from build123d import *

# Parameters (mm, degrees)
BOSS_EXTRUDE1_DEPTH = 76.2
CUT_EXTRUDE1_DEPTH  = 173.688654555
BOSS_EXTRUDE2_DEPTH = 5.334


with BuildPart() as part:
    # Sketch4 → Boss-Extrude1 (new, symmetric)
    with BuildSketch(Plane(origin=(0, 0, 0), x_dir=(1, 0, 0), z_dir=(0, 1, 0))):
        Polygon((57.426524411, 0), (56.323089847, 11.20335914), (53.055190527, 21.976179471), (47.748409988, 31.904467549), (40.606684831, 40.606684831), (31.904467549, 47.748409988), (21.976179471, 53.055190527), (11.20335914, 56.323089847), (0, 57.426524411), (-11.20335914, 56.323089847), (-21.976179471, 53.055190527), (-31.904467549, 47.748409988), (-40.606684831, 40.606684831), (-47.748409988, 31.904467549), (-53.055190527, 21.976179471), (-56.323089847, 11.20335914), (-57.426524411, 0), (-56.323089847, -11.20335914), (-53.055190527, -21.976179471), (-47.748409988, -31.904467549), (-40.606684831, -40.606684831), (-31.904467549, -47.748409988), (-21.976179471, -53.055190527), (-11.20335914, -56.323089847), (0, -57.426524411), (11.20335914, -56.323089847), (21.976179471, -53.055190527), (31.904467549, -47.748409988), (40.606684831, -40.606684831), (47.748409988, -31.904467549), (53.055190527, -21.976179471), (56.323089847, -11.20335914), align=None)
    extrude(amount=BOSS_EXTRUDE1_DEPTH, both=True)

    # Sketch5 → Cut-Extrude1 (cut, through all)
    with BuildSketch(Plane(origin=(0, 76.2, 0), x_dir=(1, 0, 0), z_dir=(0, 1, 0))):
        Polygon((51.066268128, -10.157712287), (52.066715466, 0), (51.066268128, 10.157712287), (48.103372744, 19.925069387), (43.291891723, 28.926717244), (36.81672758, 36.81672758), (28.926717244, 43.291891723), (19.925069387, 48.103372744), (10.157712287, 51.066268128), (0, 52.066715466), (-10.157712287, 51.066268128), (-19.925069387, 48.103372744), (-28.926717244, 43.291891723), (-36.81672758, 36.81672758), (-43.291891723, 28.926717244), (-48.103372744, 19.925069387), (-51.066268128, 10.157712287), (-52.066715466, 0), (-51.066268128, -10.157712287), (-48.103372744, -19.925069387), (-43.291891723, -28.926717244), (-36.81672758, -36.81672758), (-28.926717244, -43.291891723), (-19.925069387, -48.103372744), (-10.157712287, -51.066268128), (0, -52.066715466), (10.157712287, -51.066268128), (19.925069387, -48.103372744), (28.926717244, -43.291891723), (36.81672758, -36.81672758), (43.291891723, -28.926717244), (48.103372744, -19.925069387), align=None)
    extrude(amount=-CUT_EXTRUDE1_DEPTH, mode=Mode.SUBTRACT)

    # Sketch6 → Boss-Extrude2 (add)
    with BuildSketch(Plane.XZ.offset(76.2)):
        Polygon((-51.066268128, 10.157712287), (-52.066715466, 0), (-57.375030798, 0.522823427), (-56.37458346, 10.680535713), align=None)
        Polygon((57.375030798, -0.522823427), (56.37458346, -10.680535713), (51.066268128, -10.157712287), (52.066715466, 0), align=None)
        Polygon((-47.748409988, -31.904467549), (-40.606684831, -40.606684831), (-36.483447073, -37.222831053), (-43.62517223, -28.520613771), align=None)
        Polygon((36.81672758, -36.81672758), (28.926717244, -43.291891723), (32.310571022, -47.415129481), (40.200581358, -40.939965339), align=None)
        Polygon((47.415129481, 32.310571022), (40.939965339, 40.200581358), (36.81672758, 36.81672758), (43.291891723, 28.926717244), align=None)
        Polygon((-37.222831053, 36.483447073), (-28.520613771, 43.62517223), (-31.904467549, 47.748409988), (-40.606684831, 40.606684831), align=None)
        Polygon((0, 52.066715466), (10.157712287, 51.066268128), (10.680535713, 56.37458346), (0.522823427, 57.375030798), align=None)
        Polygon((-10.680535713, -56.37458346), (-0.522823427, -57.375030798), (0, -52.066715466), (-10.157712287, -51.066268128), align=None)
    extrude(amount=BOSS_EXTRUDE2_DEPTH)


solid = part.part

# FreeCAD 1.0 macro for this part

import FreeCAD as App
import Part
import Sketcher
from FreeCAD import Vector
Q = App.Units.Quantity


def add_polygon(sketch, points):
    """Adds a closed chain of lines whose ends are joined by coincident constraints."""
    first, n = sketch.GeometryCount, len(points)
    for a, b in zip(points, points[1:] + points[:1]):
        sketch.addGeometry(Part.LineSegment(App.Vector(*a, 0), App.Vector(*b, 0)), False)
    for i in range(n):
        sketch.addConstraint(Sketcher.Constraint("Coincident", first + i, 2, first + (i + 1) % n, 1))

doc = App.newDocument("Part")
body = doc.addObject("PartDesign::Body", "Body")

# Sketch on XZ plane
sketch1 = body.newObject("Sketcher::SketchObject", "Sketch")
sketch1.AttachmentSupport = (doc.getObject("XZ_Plane"), [""])
sketch1.MapMode = "FlatFace"
add_polygon(sketch1, [(57, 0), (56, -11), (53, -22), (48, -32), (41, -41), (32, -48), (22, -53), (11, -56), (0, -57), (-11, -56), (-22, -53), (-32, -48), (-41, -41), (-48, -32), (-53, -22), (-56, -11), (-57, 0), (-56, 11), (-53, 22), (-48, 32), (-41, 41), (-32, 48), (-22, 53), (-11, 56), (0, 57), (11, 56), (22, 53), (32, 48), (41, 41), (48, 32), (53, 22), (56, 11)])  # lines 0-31
sketch1.addConstraint(Sketcher.Constraint("Symmetric", 0, 2, 16, 2, -1, 1))
sketch1.addConstraint(Sketcher.Constraint("Symmetric", 1, 2, 17, 2, -1, 1))
sketch1.addConstraint(Sketcher.Constraint("Symmetric", 2, 2, 18, 2, -1, 1))
sketch1.addConstraint(Sketcher.Constraint("Symmetric", 3, 2, 19, 2, -1, 1))
sketch1.addConstraint(Sketcher.Constraint("Symmetric", 4, 2, 20, 2, -1, 1))
sketch1.addConstraint(Sketcher.Constraint("Symmetric", 5, 2, 21, 2, -1, 1))
sketch1.addConstraint(Sketcher.Constraint("Symmetric", 6, 2, 22, 2, -1, 1))
sketch1.addConstraint(Sketcher.Constraint("Symmetric", 7, 2, 23, 2, -1, 1))
sketch1.addConstraint(Sketcher.Constraint("Symmetric", 8, 2, 24, 2, -1, 1))
sketch1.addConstraint(Sketcher.Constraint("Symmetric", 9, 2, 25, 2, -1, 1))
sketch1.addConstraint(Sketcher.Constraint("Symmetric", 10, 2, 26, 2, -1, 1))
sketch1.addConstraint(Sketcher.Constraint("Symmetric", 11, 2, 27, 2, -1, 1))
sketch1.addConstraint(Sketcher.Constraint("Symmetric", 12, 2, 28, 2, -1, 1))
sketch1.addConstraint(Sketcher.Constraint("Symmetric", 13, 2, 29, 2, -1, 1))
sketch1.addConstraint(Sketcher.Constraint("Symmetric", 14, 2, 30, 2, -1, 1))
sketch1.addConstraint(Sketcher.Constraint("Symmetric", 15, 2, 31, 2, -1, 1))
sketch1.addConstraint(Sketcher.Constraint("Symmetric", 6, 2, 8, 2, -2))
sketch1.addConstraint(Sketcher.Constraint("Symmetric", 5, 2, 9, 2, -2))
sketch1.addConstraint(Sketcher.Constraint("Symmetric", 4, 2, 10, 2, -2))
sketch1.addConstraint(Sketcher.Constraint("Symmetric", 3, 2, 11, 2, -2))
sketch1.addConstraint(Sketcher.Constraint("Symmetric", 2, 2, 12, 2, -2))
sketch1.addConstraint(Sketcher.Constraint("Symmetric", 1, 2, 13, 2, -2))
sketch1.addConstraint(Sketcher.Constraint("Symmetric", 0, 2, 14, 2, -2))
sketch1.addConstraint(Sketcher.Constraint("PointOnObject", 7, 2, -2))
sketch1.addConstraint(Sketcher.Constraint("PointOnObject", 15, 2, -1))
sketch1.addConstraint(Sketcher.Constraint("Perpendicular", 0, 8))
sketch1.addConstraint(Sketcher.Constraint("Perpendicular", 1, 9))
sketch1.addConstraint(Sketcher.Constraint("Perpendicular", 2, 10))
sketch1.addConstraint(Sketcher.Constraint("Perpendicular", 3, 11))
sketch1.addConstraint(Sketcher.Constraint("Equal", 0, 1))
sketch1.addConstraint(Sketcher.Constraint("Equal", 1, 2))
sketch1.addConstraint(Sketcher.Constraint("Equal", 2, 3))
sketch1.addConstraint(Sketcher.Constraint("Equal", 3, 4))
sketch1.addConstraint(Sketcher.Constraint("Equal", 4, 5))
sketch1.addConstraint(Sketcher.Constraint("Equal", 5, 6))
sketch1.addConstraint(Sketcher.Constraint("Equal", 6, 7))
sketch1.addConstraint(Sketcher.Constraint("DistanceX", 1, 2, 0, 2, 3.267899))
sketch1.addConstraint(Sketcher.Constraint("DistanceX", -1, 1, 0, 2, 56.32309))
sketch1.addConstraint(Sketcher.Constraint("DistanceY", 0, 2, -1, 1, 11.203359))
sketch1.addConstraint(Sketcher.Constraint("DistanceY", 1, 2, -1, 1, 21.976179))
sketch1.addConstraint(Sketcher.Constraint("DistanceX", -1, 1, 2, 2, 47.74841))
pad1 = body.newObject("PartDesign::Pad", "Pad")
pad1.Profile = sketch1
pad1.Length = Q("6 in")
pad1.Midplane = True

# Sketch on XZ plane
sketch2 = body.newObject("Sketcher::SketchObject", "Sketch001")
sketch2.AttachmentSupport = (doc.getObject("XZ_Plane"), [""])
sketch2.MapMode = "FlatFace"
sketch2.AttachmentOffset = App.Placement(Vector(0, 0, -3 * 25.4), App.Rotation())
add_polygon(sketch2, [(51, 10), (52, 0), (51, -10), (48, -20), (43, -29), (37, -37), (29, -43), (20, -48), (10, -51), (0, -52), (-10, -51), (-20, -48), (-29, -43), (-37, -37), (-43, -29), (-48, -20), (-51, -10), (-52, 0), (-51, 10), (-48, 20), (-43, 29), (-37, 37), (-29, 43), (-20, 48), (-10, 51), (0, 52), (10, 51), (20, 48), (29, 43), (37, 37), (43, 29), (48, 20)])  # lines 0-31
sketch2.addConstraint(Sketcher.Constraint("Symmetric", 0, 2, 16, 2, -1, 1))
sketch2.addConstraint(Sketcher.Constraint("Symmetric", 1, 2, 17, 2, -1, 1))
sketch2.addConstraint(Sketcher.Constraint("Symmetric", 2, 2, 18, 2, -1, 1))
sketch2.addConstraint(Sketcher.Constraint("Symmetric", 3, 2, 19, 2, -1, 1))
sketch2.addConstraint(Sketcher.Constraint("Symmetric", 4, 2, 20, 2, -1, 1))
sketch2.addConstraint(Sketcher.Constraint("Symmetric", 5, 2, 21, 2, -1, 1))
sketch2.addConstraint(Sketcher.Constraint("Symmetric", 6, 2, 22, 2, -1, 1))
sketch2.addConstraint(Sketcher.Constraint("Symmetric", 7, 2, 23, 2, -1, 1))
sketch2.addConstraint(Sketcher.Constraint("Symmetric", 8, 2, 24, 2, -1, 1))
sketch2.addConstraint(Sketcher.Constraint("Symmetric", 9, 2, 25, 2, -1, 1))
sketch2.addConstraint(Sketcher.Constraint("Symmetric", 10, 2, 26, 2, -1, 1))
sketch2.addConstraint(Sketcher.Constraint("Symmetric", 11, 2, 27, 2, -1, 1))
sketch2.addConstraint(Sketcher.Constraint("Symmetric", 12, 2, 28, 2, -1, 1))
sketch2.addConstraint(Sketcher.Constraint("Symmetric", 13, 2, 29, 2, -1, 1))
sketch2.addConstraint(Sketcher.Constraint("Symmetric", 14, 2, 30, 2, -1, 1))
sketch2.addConstraint(Sketcher.Constraint("Symmetric", 15, 2, 31, 2, -1, 1))
sketch2.addConstraint(Sketcher.Constraint("Symmetric", 7, 2, 9, 2, -2))
sketch2.addConstraint(Sketcher.Constraint("Symmetric", 6, 2, 10, 2, -2))
sketch2.addConstraint(Sketcher.Constraint("Symmetric", 5, 2, 11, 2, -2))
sketch2.addConstraint(Sketcher.Constraint("Symmetric", 4, 2, 12, 2, -2))
sketch2.addConstraint(Sketcher.Constraint("Symmetric", 3, 2, 13, 2, -2))
sketch2.addConstraint(Sketcher.Constraint("Symmetric", 2, 2, 14, 2, -2))
sketch2.addConstraint(Sketcher.Constraint("Symmetric", 1, 2, 15, 2, -2))
sketch2.addConstraint(Sketcher.Constraint("PointOnObject", 0, 2, -1))
sketch2.addConstraint(Sketcher.Constraint("PointOnObject", 8, 2, -2))
sketch2.addConstraint(Sketcher.Constraint("Perpendicular", 0, 8))
sketch2.addConstraint(Sketcher.Constraint("Perpendicular", 2, 10))
sketch2.addConstraint(Sketcher.Constraint("Perpendicular", 3, 11))
sketch2.addConstraint(Sketcher.Constraint("Perpendicular", 4, 12))
sketch2.addConstraint(Sketcher.Constraint("Equal", 1, 2))
sketch2.addConstraint(Sketcher.Constraint("Equal", 2, 3))
sketch2.addConstraint(Sketcher.Constraint("Equal", 3, 4))
sketch2.addConstraint(Sketcher.Constraint("Equal", 4, 5))
sketch2.addConstraint(Sketcher.Constraint("Equal", 5, 6))
sketch2.addConstraint(Sketcher.Constraint("Equal", 6, 7))
sketch2.addConstraint(Sketcher.Constraint("Equal", 7, 8))
sketch2.addConstraint(Sketcher.Constraint("DistanceX", 5, 2, 0, 2, 23.139998))
sketch2.addConstraint(Sketcher.Constraint("DistanceX", 6, 2, 1, 2, 31.141199))
sketch2.addConstraint(Sketcher.Constraint("Distance", 0, 10.206861))
sketch2.addConstraint(Sketcher.Constraint("DistanceX", -1, 1, 1, 2, 51.066268))
sketch2.addConstraint(Sketcher.Constraint("DistanceX", -1, 1, 3, 2, 43.291892))
pocket1 = body.newObject("PartDesign::Pocket", "Pocket")
pocket1.Profile = sketch2
pocket1.Type = "ThroughAll"
pocket1.Reversed = True

# Sketch on XZ plane
sketch3 = body.newObject("Sketcher::SketchObject", "Sketch002")
sketch3.AttachmentSupport = (doc.getObject("XZ_Plane"), [""])
sketch3.MapMode = "FlatFace"
sketch3.AttachmentOffset = App.Placement(Vector(0, 0, 3 * 25.4), App.Rotation())
add_polygon(sketch3, [(-52, 0), (-51, 10), (-56, 11), (-57, 1)])  # lines 0-3
add_polygon(sketch3, [(56, -11), (57, -1), (52, 0), (51, -10)])  # lines 4-7
add_polygon(sketch3, [(-48, -32), (-41, -41), (-36, -37), (-44, -29)])  # lines 8-11
add_polygon(sketch3, [(37, -37), (29, -43), (32, -47), (40, -41)])  # lines 12-15
add_polygon(sketch3, [(47, 32), (41, 40), (37, 37), (43, 29)])  # lines 16-19
add_polygon(sketch3, [(-37, 36), (-29, 44), (-32, 48), (-41, 41)])  # lines 20-23
add_polygon(sketch3, [(0, 52), (10, 51), (11, 56), (1, 57)])  # lines 24-27
add_polygon(sketch3, [(-11, -56), (-1, -57), (0, -52), (-10, -51)])  # lines 28-31
sketch3.addConstraint(Sketcher.Constraint("Symmetric", 2, 2, 4, 2, -1, 1))
sketch3.addConstraint(Sketcher.Constraint("Symmetric", 3, 2, 5, 2, -1, 1))
sketch3.addConstraint(Sketcher.Constraint("Symmetric", 0, 2, 6, 2, -1, 1))
sketch3.addConstraint(Sketcher.Constraint("Symmetric", 1, 2, 7, 2, -1, 1))
sketch3.addConstraint(Sketcher.Constraint("Symmetric", 26, 2, 28, 2, -1, 1))
sketch3.addConstraint(Sketcher.Constraint("Symmetric", 27, 2, 29, 2, -1, 1))
sketch3.addConstraint(Sketcher.Constraint("Symmetric", 24, 2, 30, 2, -1, 1))
sketch3.addConstraint(Sketcher.Constraint("Symmetric", 25, 2, 31, 2, -1, 1))
sketch3.addConstraint(Sketcher.Constraint("Symmetric", 15, 2, 17, 2, -1))
sketch3.addConstraint(Sketcher.Constraint("Symmetric", 8, 2, 22, 2, -1))
sketch3.addConstraint(Sketcher.Constraint("PointOnObject", 3, 2, -1))
sketch3.addConstraint(Sketcher.Constraint("PointOnObject", 27, 2, -2))
sketch3.addConstraint(Sketcher.Constraint("Perpendicular", 0, 1))
sketch3.addConstraint(Sketcher.Constraint("Perpendicular", 1, 2))
sketch3.addConstraint(Sketcher.Constraint("Perpendicular", 2, 3))
sketch3.addConstraint(Sketcher.Constraint("Perpendicular", 8, 9))
sketch3.addConstraint(Sketcher.Constraint("Perpendicular", 9, 10))
sketch3.addConstraint(Sketcher.Constraint("Perpendicular", 10, 11))
sketch3.addConstraint(Sketcher.Constraint("Parallel", 11, 12))
sketch3.addConstraint(Sketcher.Constraint("Perpendicular", 12, 13))
sketch3.addConstraint(Sketcher.Constraint("Perpendicular", 13, 14))
sketch3.addConstraint(Sketcher.Constraint("Perpendicular", 14, 15))
sketch3.addConstraint(Sketcher.Constraint("Parallel", 15, 16))
sketch3.addConstraint(Sketcher.Constraint("Perpendicular", 16, 17))
sketch3.addConstraint(Sketcher.Constraint("Perpendicular", 17, 18))
sketch3.addConstraint(Sketcher.Constraint("Perpendicular", 18, 19))
sketch3.addConstraint(Sketcher.Constraint("Parallel", 19, 20))
sketch3.addConstraint(Sketcher.Constraint("Perpendicular", 20, 21))
sketch3.addConstraint(Sketcher.Constraint("Perpendicular", 21, 22))
sketch3.addConstraint(Sketcher.Constraint("Perpendicular", 22, 23))
sketch3.addConstraint(Sketcher.Constraint("Parallel", 7, 24))
sketch3.addConstraint(Sketcher.Constraint("Perpendicular", 24, 25))
sketch3.addConstraint(Sketcher.Constraint("Perpendicular", 25, 26))
sketch3.addConstraint(Sketcher.Constraint("Perpendicular", 26, 27))
sketch3.addConstraint(Sketcher.Constraint("Equal", 7, 9))
sketch3.addConstraint(Sketcher.Constraint("Equal", 6, 12))
sketch3.addConstraint(Sketcher.Constraint("Equal", 11, 13))
sketch3.addConstraint(Sketcher.Constraint("Equal", 14, 16))
sketch3.addConstraint(Sketcher.Constraint("Equal", 15, 17))
sketch3.addConstraint(Sketcher.Constraint("Equal", 10, 20))
sketch3.addConstraint(Sketcher.Constraint("Equal", 19, 21))
sketch3.addConstraint(Sketcher.Constraint("Equal", 18, 24))
sketch3.addConstraint(Sketcher.Constraint("Equal", 23, 25))
sketch3.addConstraint(Sketcher.Constraint("Distance", 1, Q("0.21 in")))
sketch3.addConstraint(Sketcher.Constraint("DistanceX", -1, 1, 14, 2, Q("1.5827001 in")))
sketch3.addConstraint(Sketcher.Constraint("DistanceY", -1, 1, 16, 2, Q("1.5827001 in")))
sketch3.addConstraint(Sketcher.Constraint("DistanceX", 0, 2, 4, 2, 108.441299))
sketch3.addConstraint(Sketcher.Constraint("DistanceX", 1, 2, 8, 2, 15.767899))
sketch3.addConstraint(Sketcher.Constraint("DistanceX", 12, 2, 5, 2, 23.139998))
sketch3.addConstraint(Sketcher.Constraint("DistanceY", 13, 2, 15, 2, 10.598402))
sketch3.addConstraint(Sketcher.Constraint("DistanceX", 19, 2, 4, 2, 9.959901))
sketch3.addConstraint(Sketcher.Constraint("DistanceX", 3, 2, 20, 2, 23.546102))
sketch3.addConstraint(Sketcher.Constraint("DistanceY", 28, 2, 13, 2, 9.959901))
sketch3.addConstraint(Sketcher.Constraint("DistanceY", 28, 2, 9, 2, 20.1522))
pad2 = body.newObject("PartDesign::Pad", "Pad001")
pad2.Profile = sketch3
pad2.Length = Q("0.21 in")

doc.recompute()
